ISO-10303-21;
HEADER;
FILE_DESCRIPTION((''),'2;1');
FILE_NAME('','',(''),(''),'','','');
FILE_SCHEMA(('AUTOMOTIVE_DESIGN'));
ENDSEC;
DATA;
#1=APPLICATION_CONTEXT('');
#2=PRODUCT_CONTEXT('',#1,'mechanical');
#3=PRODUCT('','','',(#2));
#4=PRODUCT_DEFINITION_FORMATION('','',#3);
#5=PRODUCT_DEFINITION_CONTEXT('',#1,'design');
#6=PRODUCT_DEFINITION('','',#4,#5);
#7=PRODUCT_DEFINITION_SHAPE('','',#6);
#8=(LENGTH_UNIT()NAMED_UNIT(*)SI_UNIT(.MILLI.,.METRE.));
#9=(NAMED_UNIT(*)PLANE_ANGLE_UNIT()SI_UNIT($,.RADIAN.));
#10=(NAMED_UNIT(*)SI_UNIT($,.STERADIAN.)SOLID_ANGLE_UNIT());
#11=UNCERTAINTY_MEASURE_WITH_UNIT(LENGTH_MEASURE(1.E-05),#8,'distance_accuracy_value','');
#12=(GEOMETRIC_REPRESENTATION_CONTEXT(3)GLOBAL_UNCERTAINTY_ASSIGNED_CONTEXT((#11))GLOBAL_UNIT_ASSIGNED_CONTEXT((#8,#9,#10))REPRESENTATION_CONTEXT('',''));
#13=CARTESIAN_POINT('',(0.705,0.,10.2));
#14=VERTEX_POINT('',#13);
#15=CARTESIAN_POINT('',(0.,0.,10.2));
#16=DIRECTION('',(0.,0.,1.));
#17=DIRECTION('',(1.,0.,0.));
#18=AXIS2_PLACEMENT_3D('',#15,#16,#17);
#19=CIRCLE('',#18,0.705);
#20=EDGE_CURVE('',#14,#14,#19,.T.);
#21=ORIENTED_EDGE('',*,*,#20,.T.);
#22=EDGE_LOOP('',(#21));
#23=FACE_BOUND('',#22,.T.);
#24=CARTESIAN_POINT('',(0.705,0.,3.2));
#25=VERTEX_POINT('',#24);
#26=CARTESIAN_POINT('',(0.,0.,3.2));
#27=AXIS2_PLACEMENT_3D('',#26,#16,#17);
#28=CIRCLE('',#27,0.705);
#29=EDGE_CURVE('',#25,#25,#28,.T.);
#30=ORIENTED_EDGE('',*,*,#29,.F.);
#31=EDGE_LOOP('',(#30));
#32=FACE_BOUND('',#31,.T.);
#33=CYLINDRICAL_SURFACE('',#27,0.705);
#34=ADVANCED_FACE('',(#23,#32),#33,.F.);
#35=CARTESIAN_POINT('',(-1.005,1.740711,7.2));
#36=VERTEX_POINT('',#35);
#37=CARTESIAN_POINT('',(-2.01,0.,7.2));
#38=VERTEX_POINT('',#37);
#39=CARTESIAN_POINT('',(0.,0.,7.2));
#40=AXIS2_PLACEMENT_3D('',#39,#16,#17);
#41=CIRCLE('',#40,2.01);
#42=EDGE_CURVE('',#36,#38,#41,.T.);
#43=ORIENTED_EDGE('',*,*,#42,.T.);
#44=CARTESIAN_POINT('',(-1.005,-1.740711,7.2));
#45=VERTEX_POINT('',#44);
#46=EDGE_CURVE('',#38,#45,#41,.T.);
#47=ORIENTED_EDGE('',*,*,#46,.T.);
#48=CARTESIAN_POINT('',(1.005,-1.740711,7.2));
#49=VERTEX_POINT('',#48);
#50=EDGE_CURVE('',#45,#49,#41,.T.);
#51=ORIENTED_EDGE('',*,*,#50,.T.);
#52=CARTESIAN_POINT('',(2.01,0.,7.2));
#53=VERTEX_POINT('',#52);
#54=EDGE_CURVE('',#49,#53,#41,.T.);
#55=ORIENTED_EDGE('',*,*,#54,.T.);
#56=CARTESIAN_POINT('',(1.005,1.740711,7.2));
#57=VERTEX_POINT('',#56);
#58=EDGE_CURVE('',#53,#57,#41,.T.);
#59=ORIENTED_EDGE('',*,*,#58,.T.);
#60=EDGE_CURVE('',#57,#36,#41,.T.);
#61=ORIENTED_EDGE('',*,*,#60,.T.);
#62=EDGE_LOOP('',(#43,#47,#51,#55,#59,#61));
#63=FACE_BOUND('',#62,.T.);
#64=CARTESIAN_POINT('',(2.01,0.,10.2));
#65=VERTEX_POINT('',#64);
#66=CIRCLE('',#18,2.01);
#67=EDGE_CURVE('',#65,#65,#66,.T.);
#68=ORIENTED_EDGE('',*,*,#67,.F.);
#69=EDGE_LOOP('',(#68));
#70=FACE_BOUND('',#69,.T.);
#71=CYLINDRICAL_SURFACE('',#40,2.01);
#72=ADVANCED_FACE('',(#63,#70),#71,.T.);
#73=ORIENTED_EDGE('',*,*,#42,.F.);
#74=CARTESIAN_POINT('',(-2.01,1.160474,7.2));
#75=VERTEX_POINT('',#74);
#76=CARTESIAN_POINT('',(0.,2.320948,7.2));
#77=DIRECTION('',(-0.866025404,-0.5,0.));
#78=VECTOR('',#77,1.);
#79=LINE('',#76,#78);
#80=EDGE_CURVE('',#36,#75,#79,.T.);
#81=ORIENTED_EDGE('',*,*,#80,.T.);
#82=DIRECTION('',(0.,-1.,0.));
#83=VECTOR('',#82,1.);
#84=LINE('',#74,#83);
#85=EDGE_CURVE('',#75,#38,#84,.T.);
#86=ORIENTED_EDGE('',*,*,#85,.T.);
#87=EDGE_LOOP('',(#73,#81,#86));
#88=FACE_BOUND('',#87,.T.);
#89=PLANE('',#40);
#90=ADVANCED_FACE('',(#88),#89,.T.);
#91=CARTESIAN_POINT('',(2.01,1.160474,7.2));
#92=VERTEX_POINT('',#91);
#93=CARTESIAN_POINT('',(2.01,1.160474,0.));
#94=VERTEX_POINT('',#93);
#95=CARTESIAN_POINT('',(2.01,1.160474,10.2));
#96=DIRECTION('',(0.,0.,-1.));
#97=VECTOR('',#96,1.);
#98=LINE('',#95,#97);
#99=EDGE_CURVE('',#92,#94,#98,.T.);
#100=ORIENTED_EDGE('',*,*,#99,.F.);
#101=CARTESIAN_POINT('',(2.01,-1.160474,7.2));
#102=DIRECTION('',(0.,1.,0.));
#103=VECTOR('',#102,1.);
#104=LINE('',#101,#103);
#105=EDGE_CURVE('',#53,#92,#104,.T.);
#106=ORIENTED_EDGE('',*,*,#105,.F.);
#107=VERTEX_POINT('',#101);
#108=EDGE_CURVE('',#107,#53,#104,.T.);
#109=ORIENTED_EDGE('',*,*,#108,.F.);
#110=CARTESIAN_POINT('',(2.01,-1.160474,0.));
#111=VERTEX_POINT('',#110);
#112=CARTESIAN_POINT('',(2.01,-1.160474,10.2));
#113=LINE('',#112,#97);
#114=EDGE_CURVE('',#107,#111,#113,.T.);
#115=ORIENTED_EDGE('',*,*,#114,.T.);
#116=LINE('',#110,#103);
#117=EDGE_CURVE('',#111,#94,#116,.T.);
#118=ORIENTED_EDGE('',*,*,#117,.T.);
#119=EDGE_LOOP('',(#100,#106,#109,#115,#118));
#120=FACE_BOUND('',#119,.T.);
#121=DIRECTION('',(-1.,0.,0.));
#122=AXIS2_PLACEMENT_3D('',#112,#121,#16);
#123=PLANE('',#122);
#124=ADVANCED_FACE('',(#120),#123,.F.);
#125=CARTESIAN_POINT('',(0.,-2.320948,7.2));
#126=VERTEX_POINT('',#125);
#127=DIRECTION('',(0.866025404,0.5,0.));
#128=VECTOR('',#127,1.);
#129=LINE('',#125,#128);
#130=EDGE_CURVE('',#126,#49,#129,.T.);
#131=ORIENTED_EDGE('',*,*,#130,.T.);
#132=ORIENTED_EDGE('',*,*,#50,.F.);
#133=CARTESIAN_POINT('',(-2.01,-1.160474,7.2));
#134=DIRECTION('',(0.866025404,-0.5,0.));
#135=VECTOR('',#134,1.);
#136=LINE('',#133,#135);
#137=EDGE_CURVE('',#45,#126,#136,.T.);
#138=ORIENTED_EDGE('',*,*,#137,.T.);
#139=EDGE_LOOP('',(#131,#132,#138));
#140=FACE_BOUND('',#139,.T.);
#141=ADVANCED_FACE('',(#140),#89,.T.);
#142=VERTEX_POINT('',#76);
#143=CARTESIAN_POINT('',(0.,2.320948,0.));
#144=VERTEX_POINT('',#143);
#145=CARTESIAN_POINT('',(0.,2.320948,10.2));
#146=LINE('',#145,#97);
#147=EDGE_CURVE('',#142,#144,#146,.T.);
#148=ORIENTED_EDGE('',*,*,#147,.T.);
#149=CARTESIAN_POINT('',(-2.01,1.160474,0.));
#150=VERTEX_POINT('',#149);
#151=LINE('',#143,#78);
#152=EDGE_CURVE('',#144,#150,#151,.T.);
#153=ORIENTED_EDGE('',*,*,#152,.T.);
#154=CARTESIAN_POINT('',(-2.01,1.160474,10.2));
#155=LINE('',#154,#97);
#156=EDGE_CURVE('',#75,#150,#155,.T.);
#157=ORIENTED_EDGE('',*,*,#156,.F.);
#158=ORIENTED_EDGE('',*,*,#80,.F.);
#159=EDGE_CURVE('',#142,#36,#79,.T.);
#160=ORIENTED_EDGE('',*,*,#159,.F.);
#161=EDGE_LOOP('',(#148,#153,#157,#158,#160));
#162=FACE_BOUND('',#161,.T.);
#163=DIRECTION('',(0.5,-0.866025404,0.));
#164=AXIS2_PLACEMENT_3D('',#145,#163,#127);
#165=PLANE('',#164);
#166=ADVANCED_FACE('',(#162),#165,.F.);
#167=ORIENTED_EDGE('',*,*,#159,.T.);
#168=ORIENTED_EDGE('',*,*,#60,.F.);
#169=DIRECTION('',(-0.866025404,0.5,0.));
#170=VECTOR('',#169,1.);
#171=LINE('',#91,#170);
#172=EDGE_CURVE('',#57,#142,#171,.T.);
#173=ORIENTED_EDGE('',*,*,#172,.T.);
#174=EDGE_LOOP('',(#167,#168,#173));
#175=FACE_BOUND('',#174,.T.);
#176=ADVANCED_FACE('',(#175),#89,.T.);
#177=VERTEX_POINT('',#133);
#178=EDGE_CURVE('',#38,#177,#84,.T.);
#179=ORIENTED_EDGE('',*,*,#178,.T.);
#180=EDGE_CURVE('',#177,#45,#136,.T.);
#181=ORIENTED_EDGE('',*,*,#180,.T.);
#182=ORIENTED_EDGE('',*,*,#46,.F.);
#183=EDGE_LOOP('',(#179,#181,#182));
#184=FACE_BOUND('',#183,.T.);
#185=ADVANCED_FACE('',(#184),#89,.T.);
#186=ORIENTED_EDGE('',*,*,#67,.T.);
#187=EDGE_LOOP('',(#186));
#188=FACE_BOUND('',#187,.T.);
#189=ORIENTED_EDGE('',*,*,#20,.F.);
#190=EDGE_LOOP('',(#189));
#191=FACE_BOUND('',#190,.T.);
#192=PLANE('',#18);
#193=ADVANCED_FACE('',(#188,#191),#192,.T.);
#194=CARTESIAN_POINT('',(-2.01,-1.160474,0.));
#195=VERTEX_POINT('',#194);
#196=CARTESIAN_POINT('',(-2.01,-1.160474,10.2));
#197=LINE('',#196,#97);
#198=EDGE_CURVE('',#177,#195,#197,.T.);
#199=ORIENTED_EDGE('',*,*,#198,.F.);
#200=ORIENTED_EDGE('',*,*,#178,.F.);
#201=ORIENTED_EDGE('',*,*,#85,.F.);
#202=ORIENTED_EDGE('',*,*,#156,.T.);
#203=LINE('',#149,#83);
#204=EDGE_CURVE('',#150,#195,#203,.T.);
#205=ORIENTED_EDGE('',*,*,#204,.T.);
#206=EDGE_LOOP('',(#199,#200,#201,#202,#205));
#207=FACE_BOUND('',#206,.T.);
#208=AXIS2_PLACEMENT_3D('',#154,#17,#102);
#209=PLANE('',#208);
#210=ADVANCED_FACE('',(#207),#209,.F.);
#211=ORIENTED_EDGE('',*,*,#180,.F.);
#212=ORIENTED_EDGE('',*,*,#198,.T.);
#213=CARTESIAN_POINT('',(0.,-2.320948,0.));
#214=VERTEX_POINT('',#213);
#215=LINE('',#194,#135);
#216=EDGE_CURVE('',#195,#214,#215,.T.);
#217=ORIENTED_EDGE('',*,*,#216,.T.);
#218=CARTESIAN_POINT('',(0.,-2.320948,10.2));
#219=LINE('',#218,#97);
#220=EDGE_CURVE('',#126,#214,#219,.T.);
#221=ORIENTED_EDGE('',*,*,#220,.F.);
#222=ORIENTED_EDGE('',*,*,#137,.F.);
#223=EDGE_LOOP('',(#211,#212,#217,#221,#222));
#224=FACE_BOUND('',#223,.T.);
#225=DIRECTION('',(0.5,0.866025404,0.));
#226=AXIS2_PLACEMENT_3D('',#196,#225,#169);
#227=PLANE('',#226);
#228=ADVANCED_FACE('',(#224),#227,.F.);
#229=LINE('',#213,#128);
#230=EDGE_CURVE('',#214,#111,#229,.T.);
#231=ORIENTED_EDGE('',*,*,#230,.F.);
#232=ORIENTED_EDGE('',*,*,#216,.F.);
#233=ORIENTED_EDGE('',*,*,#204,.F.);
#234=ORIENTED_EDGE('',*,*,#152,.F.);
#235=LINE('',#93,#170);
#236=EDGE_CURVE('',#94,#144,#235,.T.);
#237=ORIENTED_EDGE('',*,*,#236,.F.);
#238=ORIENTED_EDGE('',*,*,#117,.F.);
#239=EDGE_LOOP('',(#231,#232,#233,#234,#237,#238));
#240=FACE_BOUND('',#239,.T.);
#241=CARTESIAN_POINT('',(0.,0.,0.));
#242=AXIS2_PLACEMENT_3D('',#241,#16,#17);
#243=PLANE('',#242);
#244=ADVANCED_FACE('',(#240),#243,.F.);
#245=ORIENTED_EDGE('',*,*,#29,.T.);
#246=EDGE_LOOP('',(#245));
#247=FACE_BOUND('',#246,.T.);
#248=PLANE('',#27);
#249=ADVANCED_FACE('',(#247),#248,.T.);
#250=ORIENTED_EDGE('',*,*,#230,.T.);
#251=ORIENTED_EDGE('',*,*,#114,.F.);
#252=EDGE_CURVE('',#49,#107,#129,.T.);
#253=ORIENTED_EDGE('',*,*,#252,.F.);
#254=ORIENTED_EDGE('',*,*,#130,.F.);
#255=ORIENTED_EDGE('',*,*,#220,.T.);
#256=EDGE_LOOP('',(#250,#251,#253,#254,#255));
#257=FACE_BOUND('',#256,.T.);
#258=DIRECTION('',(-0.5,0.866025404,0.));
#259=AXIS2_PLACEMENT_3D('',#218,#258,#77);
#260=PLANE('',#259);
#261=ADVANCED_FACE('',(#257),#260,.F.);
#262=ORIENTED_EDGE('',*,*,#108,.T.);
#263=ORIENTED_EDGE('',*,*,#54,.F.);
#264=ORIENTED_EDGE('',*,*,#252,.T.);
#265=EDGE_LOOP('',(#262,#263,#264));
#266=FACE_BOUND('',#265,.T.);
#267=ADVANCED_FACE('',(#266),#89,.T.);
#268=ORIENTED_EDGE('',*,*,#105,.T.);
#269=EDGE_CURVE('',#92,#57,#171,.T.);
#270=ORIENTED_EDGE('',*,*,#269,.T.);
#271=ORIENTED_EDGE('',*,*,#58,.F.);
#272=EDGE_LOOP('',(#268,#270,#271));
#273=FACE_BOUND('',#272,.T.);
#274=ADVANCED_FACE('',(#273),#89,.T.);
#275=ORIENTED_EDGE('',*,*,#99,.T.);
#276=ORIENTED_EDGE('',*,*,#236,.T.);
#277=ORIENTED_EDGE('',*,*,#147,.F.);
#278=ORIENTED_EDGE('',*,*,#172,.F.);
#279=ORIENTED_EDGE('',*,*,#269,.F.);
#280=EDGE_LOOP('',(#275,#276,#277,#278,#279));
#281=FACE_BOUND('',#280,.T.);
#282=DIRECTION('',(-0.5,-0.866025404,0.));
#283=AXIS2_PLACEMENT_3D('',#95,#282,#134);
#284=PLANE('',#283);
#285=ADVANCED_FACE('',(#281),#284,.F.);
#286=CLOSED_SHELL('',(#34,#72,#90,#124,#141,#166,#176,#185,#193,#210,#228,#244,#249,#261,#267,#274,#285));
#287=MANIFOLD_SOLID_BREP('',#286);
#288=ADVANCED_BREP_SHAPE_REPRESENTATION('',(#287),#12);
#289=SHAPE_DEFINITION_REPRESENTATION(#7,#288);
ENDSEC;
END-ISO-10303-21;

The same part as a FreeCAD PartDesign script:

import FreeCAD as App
import Part
import Sketcher

V = App.Vector
Q = App.Units.Quantity

doc = App.newDocument("Part")
body = doc.addObject("PartDesign::Body", "Body")

# Sketch on XY plane
sketch1 = body.newObject("Sketcher::SketchObject", "Sketch")
sketch1.AttachmentSupport = (doc.getObject("XY_Plane"), [""])
sketch1.MapMode = "FlatFace"
sketch1.addGeometry([
    Part.LineSegment(V(0, -2.3, 0), V(2, -1.2, 0)),  # 0
    Part.LineSegment(V(2, -1.2, 0), V(2, 1.2, 0)),  # 1
    Part.LineSegment(V(2, 1.2, 0), V(0, 2.3, 0)),  # 2
    Part.LineSegment(V(0, 2.3, 0), V(-2, 1.2, 0)),  # 3
    Part.LineSegment(V(-2, 1.2, 0), V(-2, -1.2, 0)),  # 4
    Part.LineSegment(V(-2, -1.2, 0), V(0, -2.3, 0)),  # 5
], False)
sketch1.addConstraint([
    Sketcher.Constraint("Coincident", 0, 2, 1, 1),
    Sketcher.Constraint("Coincident", 1, 2, 2, 1),
    Sketcher.Constraint("Coincident", 2, 2, 3, 1),
    Sketcher.Constraint("Coincident", 3, 2, 4, 1),
    Sketcher.Constraint("Coincident", 4, 2, 5, 1),
    Sketcher.Constraint("Coincident", 5, 2, 0, 1),
    Sketcher.Constraint("Vertical", 1),
    Sketcher.Constraint("Vertical", 4),
    Sketcher.Constraint("Symmetric", 0, 2, 3, 2, -1, 1),
    Sketcher.Constraint("Symmetric", 2, 2, 5, 2, -1, 1),
    Sketcher.Constraint("PointOnObject", 2, 2, -2),
    Sketcher.Constraint("Parallel", 2, 5),
    Sketcher.Constraint("Horizontal", 1, 2, 3, 2),
    Sketcher.Constraint("Angle", 0, Q("30 deg")),
    Sketcher.Constraint("DistanceX", -1, 1, 0, 2, 2.01),
    Sketcher.Constraint("DistanceY", 1, 1, 1, 2, 2.320948),
])
pad1 = body.newObject("PartDesign::Pad", "Pad")
pad1.Profile = sketch1
pad1.Length = 10.2

# Sketch on XY plane
sketch2 = body.newObject("Sketcher::SketchObject", "Sketch001")
sketch2.AttachmentSupport = (doc.getObject("XY_Plane"), [""])
sketch2.MapMode = "FlatFace"
sketch2.AttachmentOffset = App.Placement(V(0, 0, 10.2), App.Rotation())
sketch2.addGeometry([
    Part.Circle(V(0, 0, 0), V(0, 0, 1), 2.3),
    Part.Circle(V(0, 0, 0), V(0, 0, 1), 2),
], False)
sketch2.addConstraint([
    Sketcher.Constraint("Coincident", 0, 3, -1, 1),
    Sketcher.Constraint("Coincident", 1, 3, -1, 1),
    Sketcher.Constraint("Diameter", 1, 4.02),
    Sketcher.Constraint("Diameter", 0, 4.641896),
])
pocket1 = body.newObject("PartDesign::Pocket", "Pocket")
pocket1.Profile = sketch2
pocket1.Length = 3

# Sketch on XY plane
sketch3 = body.newObject("Sketcher::SketchObject", "Sketch002")
sketch3.AttachmentSupport = (doc.getObject("XY_Plane"), [""])
sketch3.MapMode = "FlatFace"
sketch3.AttachmentOffset = App.Placement(V(0, 0, 10.2), App.Rotation())
sketch3.addGeometry(Part.Circle(V(0, 0, 0), V(0, 0, 1), 0.7), False)
sketch3.addConstraint([
    Sketcher.Constraint("Coincident", 0, 3, -1, 1),
    Sketcher.Constraint("Diameter", 0, 1.41),
])
pocket2 = body.newObject("PartDesign::Pocket", "Pocket001")
pocket2.Profile = sketch3
pocket2.Length = 7

doc.recompute()
